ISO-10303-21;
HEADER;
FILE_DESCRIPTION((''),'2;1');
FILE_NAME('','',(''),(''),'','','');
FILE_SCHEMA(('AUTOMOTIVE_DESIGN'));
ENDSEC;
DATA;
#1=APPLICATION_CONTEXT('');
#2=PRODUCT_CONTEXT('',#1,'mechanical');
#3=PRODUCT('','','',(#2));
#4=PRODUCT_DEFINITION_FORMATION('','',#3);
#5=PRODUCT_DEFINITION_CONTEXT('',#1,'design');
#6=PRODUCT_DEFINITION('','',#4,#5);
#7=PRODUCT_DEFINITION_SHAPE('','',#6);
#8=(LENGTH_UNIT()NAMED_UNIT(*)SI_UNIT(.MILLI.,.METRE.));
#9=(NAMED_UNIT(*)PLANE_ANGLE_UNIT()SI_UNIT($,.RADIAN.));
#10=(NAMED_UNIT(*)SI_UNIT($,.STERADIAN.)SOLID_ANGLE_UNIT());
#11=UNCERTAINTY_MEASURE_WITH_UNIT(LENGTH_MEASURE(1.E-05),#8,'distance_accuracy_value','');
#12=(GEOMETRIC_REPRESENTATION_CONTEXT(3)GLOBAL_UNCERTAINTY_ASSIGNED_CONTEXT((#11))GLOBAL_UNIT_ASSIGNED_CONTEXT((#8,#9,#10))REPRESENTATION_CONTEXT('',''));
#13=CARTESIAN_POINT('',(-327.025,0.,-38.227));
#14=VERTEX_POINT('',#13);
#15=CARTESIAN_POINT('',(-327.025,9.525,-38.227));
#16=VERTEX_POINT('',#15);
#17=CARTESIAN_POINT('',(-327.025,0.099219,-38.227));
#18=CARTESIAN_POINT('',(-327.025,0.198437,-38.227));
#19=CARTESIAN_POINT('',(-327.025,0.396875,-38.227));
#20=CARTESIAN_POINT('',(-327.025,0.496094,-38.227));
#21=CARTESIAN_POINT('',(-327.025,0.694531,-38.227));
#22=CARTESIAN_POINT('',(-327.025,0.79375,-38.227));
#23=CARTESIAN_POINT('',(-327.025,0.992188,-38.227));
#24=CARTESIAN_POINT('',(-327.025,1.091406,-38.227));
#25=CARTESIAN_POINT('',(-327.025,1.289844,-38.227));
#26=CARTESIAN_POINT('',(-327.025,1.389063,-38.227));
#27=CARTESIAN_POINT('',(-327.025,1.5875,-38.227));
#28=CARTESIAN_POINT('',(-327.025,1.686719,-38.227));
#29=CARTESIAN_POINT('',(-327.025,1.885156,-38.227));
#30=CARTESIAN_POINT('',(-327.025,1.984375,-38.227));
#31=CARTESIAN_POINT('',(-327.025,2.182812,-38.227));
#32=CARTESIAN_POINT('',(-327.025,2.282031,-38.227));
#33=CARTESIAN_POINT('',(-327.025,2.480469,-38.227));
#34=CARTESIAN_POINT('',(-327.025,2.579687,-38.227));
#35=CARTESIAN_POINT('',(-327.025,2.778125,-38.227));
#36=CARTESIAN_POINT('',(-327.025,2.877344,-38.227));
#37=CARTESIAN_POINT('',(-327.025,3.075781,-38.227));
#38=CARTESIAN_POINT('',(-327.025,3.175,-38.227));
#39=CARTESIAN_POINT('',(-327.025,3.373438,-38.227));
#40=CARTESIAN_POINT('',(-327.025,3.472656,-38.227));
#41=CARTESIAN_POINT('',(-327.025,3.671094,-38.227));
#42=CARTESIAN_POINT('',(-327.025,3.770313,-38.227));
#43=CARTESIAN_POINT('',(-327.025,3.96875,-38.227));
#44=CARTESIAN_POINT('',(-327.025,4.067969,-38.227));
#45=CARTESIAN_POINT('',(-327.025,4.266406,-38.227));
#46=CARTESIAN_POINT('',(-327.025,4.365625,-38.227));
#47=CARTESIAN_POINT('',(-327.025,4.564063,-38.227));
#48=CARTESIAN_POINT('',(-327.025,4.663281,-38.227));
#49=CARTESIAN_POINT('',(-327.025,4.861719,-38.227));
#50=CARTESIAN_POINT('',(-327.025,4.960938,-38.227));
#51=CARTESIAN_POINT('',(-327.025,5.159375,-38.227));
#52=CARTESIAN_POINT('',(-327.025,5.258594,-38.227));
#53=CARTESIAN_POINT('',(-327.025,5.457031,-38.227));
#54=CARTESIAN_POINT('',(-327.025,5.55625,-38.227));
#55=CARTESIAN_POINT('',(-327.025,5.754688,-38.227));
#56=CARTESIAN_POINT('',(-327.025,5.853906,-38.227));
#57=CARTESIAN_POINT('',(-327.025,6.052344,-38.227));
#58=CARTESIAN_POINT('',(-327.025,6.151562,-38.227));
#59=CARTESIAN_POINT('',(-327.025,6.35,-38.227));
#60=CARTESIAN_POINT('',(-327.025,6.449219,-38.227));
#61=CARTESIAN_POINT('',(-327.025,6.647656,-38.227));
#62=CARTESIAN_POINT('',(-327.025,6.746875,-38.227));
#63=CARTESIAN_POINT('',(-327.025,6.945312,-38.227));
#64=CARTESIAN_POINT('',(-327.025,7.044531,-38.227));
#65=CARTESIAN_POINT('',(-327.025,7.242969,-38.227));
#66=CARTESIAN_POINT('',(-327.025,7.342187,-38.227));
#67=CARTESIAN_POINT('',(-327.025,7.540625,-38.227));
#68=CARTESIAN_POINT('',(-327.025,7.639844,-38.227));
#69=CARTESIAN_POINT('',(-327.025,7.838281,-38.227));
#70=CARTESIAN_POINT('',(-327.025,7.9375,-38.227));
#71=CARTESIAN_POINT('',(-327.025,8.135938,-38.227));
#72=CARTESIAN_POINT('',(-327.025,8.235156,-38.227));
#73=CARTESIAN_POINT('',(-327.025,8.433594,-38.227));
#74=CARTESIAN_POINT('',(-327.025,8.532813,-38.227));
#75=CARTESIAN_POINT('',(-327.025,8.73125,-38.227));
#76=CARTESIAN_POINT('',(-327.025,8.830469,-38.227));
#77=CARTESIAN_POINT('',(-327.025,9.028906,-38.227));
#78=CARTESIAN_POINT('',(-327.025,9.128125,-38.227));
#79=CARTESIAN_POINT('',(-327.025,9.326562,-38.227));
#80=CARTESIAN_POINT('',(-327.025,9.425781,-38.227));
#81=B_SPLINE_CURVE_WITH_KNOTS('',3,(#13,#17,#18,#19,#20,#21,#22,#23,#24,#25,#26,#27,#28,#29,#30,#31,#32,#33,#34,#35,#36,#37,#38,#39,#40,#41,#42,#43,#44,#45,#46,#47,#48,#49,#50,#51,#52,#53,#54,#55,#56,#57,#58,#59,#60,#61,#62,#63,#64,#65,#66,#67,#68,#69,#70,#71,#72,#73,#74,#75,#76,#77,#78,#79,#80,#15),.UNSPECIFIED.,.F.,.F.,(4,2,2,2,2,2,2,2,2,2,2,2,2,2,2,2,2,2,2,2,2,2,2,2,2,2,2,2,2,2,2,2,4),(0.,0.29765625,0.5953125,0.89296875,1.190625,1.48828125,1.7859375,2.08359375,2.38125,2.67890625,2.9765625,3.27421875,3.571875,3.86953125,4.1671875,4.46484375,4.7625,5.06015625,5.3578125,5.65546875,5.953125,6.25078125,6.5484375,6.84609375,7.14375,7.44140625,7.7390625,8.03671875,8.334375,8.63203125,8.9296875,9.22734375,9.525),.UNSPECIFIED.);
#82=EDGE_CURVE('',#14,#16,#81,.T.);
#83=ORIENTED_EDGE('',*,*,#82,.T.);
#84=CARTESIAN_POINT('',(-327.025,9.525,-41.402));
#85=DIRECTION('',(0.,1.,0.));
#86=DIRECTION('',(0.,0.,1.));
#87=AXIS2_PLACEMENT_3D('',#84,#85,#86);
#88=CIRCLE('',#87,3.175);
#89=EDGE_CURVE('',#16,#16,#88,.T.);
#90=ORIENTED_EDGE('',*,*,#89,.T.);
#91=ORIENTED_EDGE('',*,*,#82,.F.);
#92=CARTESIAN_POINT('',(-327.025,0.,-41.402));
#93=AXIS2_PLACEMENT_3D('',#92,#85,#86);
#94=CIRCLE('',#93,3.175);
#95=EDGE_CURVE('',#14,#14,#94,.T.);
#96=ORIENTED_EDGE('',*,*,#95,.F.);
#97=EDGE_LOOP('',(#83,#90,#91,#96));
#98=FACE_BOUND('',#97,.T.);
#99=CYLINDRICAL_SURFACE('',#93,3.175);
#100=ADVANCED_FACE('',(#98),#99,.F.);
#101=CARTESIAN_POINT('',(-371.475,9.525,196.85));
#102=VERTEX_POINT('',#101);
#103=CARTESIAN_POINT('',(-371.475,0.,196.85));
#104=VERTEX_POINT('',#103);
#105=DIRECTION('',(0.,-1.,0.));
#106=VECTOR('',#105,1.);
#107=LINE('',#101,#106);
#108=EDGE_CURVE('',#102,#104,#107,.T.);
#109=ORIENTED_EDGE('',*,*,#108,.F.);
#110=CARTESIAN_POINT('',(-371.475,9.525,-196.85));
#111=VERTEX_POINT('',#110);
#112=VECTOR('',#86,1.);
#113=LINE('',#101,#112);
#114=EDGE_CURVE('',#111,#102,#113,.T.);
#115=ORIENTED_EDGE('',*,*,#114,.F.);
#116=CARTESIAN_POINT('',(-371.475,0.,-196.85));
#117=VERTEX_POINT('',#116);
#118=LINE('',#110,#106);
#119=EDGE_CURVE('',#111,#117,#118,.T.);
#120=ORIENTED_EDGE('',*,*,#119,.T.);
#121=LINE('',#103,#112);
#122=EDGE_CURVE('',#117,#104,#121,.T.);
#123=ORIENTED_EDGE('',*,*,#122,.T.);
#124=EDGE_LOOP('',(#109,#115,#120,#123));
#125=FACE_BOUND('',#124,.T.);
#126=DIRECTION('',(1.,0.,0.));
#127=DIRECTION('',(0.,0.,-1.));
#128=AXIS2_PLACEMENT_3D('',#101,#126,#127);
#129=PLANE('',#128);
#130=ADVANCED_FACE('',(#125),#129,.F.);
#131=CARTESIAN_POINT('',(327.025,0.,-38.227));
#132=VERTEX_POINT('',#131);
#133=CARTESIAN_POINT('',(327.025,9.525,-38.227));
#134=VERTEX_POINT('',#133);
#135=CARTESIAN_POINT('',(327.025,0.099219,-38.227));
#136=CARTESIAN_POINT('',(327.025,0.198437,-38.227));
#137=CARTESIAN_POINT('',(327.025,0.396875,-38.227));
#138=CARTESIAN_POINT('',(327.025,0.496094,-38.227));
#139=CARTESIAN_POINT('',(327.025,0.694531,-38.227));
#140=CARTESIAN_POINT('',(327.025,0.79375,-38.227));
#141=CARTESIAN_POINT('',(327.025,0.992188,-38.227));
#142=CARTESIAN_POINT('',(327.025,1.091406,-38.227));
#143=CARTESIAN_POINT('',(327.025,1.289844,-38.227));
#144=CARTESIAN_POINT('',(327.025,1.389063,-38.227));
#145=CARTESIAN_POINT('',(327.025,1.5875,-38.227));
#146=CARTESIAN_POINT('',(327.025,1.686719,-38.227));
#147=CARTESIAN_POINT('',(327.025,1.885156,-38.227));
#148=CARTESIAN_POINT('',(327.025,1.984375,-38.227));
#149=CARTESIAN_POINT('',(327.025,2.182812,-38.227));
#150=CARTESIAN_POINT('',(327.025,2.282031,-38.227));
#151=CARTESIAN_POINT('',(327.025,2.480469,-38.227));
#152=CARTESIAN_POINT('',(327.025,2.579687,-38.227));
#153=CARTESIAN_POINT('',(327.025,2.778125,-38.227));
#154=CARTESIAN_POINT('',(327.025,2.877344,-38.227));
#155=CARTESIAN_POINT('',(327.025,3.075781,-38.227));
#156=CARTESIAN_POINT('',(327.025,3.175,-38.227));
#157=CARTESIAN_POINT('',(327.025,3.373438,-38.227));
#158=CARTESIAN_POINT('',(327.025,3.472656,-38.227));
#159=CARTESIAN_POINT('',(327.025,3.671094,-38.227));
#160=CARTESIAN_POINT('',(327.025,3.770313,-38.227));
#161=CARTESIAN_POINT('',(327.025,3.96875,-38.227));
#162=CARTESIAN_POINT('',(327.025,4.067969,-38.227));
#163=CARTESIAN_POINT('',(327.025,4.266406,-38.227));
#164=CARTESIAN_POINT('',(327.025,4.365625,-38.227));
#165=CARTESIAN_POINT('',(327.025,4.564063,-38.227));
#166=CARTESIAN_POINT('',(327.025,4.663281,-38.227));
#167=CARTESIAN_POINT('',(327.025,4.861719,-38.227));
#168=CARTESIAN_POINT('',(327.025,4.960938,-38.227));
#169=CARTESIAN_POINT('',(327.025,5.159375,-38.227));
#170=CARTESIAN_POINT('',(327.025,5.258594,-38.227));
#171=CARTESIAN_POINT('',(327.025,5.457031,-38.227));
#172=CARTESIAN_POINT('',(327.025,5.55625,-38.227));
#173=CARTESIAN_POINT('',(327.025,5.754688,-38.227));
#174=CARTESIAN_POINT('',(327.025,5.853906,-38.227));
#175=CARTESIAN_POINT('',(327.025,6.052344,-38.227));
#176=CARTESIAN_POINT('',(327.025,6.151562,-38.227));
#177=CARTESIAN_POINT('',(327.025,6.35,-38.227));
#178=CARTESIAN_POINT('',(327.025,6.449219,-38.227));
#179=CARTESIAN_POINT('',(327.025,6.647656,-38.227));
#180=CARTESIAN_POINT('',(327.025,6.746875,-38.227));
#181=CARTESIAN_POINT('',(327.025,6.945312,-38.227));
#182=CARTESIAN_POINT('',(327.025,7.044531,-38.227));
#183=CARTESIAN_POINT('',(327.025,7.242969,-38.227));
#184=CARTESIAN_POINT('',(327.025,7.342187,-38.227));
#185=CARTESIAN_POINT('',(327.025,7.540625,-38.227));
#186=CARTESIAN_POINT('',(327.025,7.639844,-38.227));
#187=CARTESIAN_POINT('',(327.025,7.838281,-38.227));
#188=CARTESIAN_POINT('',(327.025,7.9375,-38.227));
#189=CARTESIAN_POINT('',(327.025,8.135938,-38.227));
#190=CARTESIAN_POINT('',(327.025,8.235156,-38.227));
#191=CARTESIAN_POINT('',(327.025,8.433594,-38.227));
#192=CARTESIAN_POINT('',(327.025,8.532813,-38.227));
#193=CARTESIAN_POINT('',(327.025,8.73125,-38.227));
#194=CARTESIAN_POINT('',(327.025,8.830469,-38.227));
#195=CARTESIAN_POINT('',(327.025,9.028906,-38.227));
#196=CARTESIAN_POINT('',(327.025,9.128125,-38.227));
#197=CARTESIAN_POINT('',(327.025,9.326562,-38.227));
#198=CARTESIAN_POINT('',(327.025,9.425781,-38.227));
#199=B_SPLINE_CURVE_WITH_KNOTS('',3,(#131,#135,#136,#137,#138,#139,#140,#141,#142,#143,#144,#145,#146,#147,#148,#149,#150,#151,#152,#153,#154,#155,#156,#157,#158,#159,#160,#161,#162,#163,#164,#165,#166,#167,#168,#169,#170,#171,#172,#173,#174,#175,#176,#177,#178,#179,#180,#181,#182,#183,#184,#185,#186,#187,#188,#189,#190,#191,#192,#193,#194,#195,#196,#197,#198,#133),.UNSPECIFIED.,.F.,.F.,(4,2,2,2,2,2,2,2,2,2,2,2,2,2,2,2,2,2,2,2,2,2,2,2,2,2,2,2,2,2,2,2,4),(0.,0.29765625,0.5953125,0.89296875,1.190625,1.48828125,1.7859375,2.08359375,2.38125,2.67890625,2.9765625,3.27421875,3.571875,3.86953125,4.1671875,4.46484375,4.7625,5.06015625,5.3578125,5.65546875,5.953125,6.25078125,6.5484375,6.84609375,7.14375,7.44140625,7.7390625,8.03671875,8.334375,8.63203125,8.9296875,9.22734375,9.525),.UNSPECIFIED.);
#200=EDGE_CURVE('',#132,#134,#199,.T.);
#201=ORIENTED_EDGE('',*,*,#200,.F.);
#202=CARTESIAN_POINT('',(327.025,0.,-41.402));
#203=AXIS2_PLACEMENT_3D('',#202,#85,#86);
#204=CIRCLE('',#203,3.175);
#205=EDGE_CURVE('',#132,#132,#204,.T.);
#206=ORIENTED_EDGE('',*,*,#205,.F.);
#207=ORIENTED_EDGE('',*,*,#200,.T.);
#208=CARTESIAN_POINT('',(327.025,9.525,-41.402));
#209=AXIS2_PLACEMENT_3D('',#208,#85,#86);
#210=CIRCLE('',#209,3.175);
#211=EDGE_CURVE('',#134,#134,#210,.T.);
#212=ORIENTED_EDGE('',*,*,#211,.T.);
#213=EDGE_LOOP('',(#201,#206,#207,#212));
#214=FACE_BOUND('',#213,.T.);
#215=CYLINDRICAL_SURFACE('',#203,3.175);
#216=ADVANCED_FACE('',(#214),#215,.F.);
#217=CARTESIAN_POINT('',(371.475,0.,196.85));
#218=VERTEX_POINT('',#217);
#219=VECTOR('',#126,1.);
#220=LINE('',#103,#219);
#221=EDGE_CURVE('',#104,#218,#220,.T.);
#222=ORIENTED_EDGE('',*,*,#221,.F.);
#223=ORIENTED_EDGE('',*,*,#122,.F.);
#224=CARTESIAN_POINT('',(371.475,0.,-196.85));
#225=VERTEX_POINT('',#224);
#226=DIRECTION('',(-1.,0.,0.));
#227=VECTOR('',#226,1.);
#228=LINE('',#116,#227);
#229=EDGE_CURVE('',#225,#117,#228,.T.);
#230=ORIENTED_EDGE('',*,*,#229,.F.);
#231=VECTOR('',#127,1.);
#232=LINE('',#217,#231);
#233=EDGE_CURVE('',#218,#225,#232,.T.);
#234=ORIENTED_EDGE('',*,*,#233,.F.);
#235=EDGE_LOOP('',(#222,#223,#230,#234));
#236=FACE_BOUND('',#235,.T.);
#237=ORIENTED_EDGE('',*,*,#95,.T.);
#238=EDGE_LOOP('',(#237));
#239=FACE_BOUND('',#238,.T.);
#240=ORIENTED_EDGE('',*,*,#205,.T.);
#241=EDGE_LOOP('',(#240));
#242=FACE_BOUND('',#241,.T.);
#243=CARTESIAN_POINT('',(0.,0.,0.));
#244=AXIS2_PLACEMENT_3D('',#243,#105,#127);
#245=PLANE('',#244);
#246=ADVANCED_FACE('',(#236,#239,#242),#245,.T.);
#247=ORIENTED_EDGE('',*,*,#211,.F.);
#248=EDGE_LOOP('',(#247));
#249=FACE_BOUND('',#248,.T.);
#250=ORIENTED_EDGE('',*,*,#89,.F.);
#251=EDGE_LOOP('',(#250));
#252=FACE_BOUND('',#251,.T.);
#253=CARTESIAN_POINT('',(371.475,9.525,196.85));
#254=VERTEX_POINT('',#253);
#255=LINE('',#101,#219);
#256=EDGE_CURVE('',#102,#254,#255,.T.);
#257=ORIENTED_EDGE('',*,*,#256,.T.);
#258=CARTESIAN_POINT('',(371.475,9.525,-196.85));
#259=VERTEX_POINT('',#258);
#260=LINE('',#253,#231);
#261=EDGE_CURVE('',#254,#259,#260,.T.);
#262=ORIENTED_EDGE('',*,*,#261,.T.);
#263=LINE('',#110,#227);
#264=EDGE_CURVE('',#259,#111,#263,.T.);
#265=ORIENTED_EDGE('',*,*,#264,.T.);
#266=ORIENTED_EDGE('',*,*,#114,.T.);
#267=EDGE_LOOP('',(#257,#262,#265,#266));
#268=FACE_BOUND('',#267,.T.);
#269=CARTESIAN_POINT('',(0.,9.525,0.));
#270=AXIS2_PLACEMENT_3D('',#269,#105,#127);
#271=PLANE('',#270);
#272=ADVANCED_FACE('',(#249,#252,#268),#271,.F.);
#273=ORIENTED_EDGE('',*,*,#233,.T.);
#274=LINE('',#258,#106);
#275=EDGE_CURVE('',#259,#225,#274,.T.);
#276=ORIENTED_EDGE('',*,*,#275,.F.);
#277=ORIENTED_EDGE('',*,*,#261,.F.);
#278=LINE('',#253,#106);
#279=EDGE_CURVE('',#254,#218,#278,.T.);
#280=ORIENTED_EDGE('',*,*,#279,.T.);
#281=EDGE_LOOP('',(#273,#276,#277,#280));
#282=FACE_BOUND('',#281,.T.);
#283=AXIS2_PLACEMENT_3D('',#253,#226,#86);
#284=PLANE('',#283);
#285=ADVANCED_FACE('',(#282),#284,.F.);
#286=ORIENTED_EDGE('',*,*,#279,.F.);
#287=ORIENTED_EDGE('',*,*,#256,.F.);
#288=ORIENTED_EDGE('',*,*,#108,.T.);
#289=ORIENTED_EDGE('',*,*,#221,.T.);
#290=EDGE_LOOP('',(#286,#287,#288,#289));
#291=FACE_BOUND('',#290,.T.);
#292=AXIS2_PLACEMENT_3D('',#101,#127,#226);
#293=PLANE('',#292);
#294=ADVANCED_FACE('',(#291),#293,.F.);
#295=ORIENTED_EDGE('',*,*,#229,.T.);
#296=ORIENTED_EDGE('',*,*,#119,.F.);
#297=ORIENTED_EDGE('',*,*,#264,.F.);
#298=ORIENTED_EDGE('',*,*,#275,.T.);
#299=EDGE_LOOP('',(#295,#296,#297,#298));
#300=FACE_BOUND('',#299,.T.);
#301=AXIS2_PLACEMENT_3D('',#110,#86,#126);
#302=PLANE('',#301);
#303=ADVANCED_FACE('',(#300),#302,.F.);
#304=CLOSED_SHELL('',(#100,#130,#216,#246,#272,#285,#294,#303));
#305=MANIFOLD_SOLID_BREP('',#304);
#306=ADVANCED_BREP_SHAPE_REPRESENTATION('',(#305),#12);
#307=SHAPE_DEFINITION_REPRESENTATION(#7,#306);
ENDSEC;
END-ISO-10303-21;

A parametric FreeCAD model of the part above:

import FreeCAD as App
import Part
import Sketcher
from FreeCAD import Vector
Q = App.Units.Quantity


def add_polygon(sketch, points):
    """Adds a closed chain of lines whose ends are joined by coincident constraints."""
    first, n = sketch.GeometryCount, len(points)
    for a, b in zip(points, points[1:] + points[:1]):
        sketch.addGeometry(Part.LineSegment(App.Vector(*a, 0), App.Vector(*b, 0)), False)
    for i in range(n):
        sketch.addConstraint(Sketcher.Constraint("Coincident", first + i, 2, first + (i + 1) % n, 1))

doc = App.newDocument("Part")
params = doc.addObject("Spreadsheet::Sheet", "Params")
for row, (alias, value) in enumerate([
    ("sketch1_height", "15.5 in"),
    ("sketch1_width", "29.25 in"),
    ("pad1_length", "0.375 in"),
    ("sketch2_diameter", "0.25 in"),
], start=1):
    params.set(f"A{row}", alias)
    params.set(f"B{row}", "=" + value)
    params.setAlias(f"B{row}", alias)

body = doc.addObject("PartDesign::Body", "Body")

sketch1 = body.newObject("Sketcher::SketchObject", "Sketch")
sketch1.AttachmentSupport = (doc.getObject("XZ_Plane"), [""])
sketch1.MapMode = "FlatFace"
add_polygon(sketch1, [(-371, -197), (-371, 197), (371, 197), (371, -197)])
sketch1.addConstraint([
    Sketcher.Constraint("Vertical", 0),
    Sketcher.Constraint("Horizontal", 1),
    Sketcher.Constraint("Vertical", 2),
    Sketcher.Constraint("Horizontal", 3),
    Sketcher.Constraint("Symmetric", 0, 2, 2, 2, -1, 1),
    Sketcher.Constraint("DistanceY", 0, 1, 0, 2, Q("15.5 in")),
    Sketcher.Constraint("DistanceX", 1, 1, 1, 2, Q("29.25 in")),
])
sketch1.setExpression("Constraints[9]", "Params.sketch1_height")
sketch1.setExpression("Constraints[10]", "Params.sketch1_width")
pad1 = body.newObject("PartDesign::Pad", "Pad")
pad1.Profile = sketch1
pad1.setExpression("Length", "Params.pad1_length")
pad1.Reversed = True

sketch2 = body.newObject("Sketcher::SketchObject", "Sketch001")
sketch2.AttachmentSupport = (doc.getObject("XZ_Plane"), [""])
sketch2.MapMode = "FlatFace"
sketch2.AttachmentOffset = App.Placement(Vector(0, 0, -0.375 * 25.4), App.Rotation())
sketch2.addGeometry([
    Part.Circle(Vector(-327, -41.4, 0), Vector(0, 0, 1), 3.2),
    Part.Circle(Vector(327, -41.4, 0), Vector(0, 0, 1), 3.2),
], False)
sketch2.addConstraint([
    Sketcher.Constraint("Equal", 0, 1),
    Sketcher.Constraint("Symmetric", 0, 3, 1, 3, -2),
    Sketcher.Constraint("Diameter", 0, Q("0.25 in")),
    Sketcher.Constraint("DistanceY", 0, 3, -1, 1, Q("1.63 in")),
    Sketcher.Constraint("DistanceX", 0, 3, 1, 3, Q("25.75 in")),
])
sketch2.setExpression("Constraints[2]", "Params.sketch2_diameter")
pocket1 = body.newObject("PartDesign::Pocket", "Pocket")
pocket1.Profile = sketch2
pocket1.Type = "ThroughAll"
pocket1.Reversed = True

doc.recompute()
